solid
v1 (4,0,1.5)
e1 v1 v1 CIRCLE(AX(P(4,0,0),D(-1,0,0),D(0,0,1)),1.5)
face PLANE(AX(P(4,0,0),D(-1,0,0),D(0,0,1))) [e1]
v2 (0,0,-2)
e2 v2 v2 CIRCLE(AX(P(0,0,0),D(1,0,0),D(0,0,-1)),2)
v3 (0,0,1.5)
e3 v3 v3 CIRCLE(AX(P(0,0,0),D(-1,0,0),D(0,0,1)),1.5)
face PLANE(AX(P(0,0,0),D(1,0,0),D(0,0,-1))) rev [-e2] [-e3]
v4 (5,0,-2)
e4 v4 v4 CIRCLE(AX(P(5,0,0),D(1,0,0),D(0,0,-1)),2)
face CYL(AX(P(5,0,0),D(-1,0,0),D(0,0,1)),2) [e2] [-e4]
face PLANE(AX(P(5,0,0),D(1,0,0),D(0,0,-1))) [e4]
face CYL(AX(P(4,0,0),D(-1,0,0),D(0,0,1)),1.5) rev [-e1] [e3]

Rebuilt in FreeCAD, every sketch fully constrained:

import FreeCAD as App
import Part
import Sketcher
Q = App.Units.Quantity

doc = App.newDocument("Part")
body = doc.addObject("PartDesign::Body", "Body")

sketch1 = doc.addObject("Sketcher::SketchObject", "Sketch")
body.addObject(sketch1)
sketch1.AttachmentSupport = (doc.YZ_Plane, [""])
sketch1.MapMode = "FlatFace"
sketch1.addGeometry(Part.Circle(App.Vector(0, 0, 0), App.Vector(0, 0, 1), 2), False)
sketch1.addConstraint([
    Sketcher.Constraint("Coincident", 0, 3, -1, 1),
    Sketcher.Constraint("Diameter", 0, Q("4 mm")),
])
pad1 = doc.addObject("PartDesign::Pad", "Pad")
body.addObject(pad1)
pad1.Profile = sketch1
pad1.Length = 5

sketch2 = doc.addObject("Sketcher::SketchObject", "Sketch001")
body.addObject(sketch2)
sketch2.AttachmentSupport = (doc.YZ_Plane, [""])
sketch2.MapMode = "FlatFace"
sketch2.addGeometry(Part.Circle(App.Vector(0, 0, 0), App.Vector(0, 0, 1), 1.5), False)
sketch2.addConstraint([
    Sketcher.Constraint("Coincident", 0, 3, -1, 1),
    Sketcher.Constraint("Diameter", 0, Q("3 mm")),
])
pocket1 = doc.addObject("PartDesign::Pocket", "Pocket")
body.addObject(pocket1)
pocket1.Profile = sketch2
pocket1.Length = 4
pocket1.Reversed = True

doc.recompute()
